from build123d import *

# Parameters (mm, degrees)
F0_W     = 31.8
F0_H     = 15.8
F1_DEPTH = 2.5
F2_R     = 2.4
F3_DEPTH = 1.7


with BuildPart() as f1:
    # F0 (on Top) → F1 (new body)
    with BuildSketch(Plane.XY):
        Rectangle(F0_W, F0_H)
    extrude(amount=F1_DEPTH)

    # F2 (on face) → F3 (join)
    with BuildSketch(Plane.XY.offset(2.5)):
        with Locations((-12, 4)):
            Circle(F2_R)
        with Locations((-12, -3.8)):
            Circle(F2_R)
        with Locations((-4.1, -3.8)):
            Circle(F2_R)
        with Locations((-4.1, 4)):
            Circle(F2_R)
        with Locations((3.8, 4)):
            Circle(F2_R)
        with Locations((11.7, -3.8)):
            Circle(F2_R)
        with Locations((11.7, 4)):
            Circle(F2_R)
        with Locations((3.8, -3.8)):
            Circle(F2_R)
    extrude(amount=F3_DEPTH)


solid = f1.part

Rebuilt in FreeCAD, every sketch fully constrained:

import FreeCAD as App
import Part
import Sketcher
from FreeCAD import Vector


def add_polygon(sketch, points):
    """Adds a closed chain of lines whose ends are joined by coincident constraints."""
    first, n = sketch.GeometryCount, len(points)
    for a, b in zip(points, points[1:] + points[:1]):
        sketch.addGeometry(Part.LineSegment(App.Vector(*a, 0), App.Vector(*b, 0)), False)
    for i in range(n):
        sketch.addConstraint(Sketcher.Constraint("Coincident", first + i, 2, first + (i + 1) % n, 1))

doc = App.newDocument("Part")
body = doc.addObject("PartDesign::Body", "Body")

sketch1 = body.newObject("Sketcher::SketchObject", "Sketch")
sketch1.AttachmentSupport = (doc.getObject("XY_Plane"), [""])
sketch1.MapMode = "FlatFace"
add_polygon(sketch1, [(-16, 8), (-16, -8), (16, -8), (16, 8)])
sketch1.addConstraint([
    Sketcher.Constraint("Vertical", 0),
    Sketcher.Constraint("Horizontal", 1),
    Sketcher.Constraint("Vertical", 2),
    Sketcher.Constraint("Horizontal", 3),
    Sketcher.Constraint("Symmetric", 0, 2, 2, 2, -1, 1),
    Sketcher.Constraint("DistanceX", 1, 1, 1, 2, 31.8),
    Sketcher.Constraint("DistanceY", 0, 2, 0, 1, 15.8),
])
pad1 = body.newObject("PartDesign::Pad", "Pad")
pad1.Profile = sketch1
pad1.Length = 2.5

sketch2 = body.newObject("Sketcher::SketchObject", "Sketch001")
sketch2.AttachmentSupport = (doc.getObject("XY_Plane"), [""])
sketch2.MapMode = "FlatFace"
sketch2.AttachmentOffset = App.Placement(Vector(0, 0, 2.5), App.Rotation())
sketch2.addGeometry([
    Part.Circle(Vector(-12, 4, 0), Vector(0, 0, 1), 2.4),
    Part.Circle(Vector(-12, -3.8, 0), Vector(0, 0, 1), 2.4),
    Part.Circle(Vector(-4.1, -3.8, 0), Vector(0, 0, 1), 2.4),
    Part.Circle(Vector(-4.1, 4, 0), Vector(0, 0, 1), 2.4),
    Part.Circle(Vector(3.8, 4, 0), Vector(0, 0, 1), 2.4),
    Part.Circle(Vector(11.7, -3.8, 0), Vector(0, 0, 1), 2.4),
    Part.Circle(Vector(11.7, 4, 0), Vector(0, 0, 1), 2.4),
    Part.Circle(Vector(3.8, -3.8, 0), Vector(0, 0, 1), 2.4),
], False)
sketch2.addConstraint([
    Sketcher.Constraint("Equal", 0, 1),
    Sketcher.Constraint("Equal", 1, 2),
    Sketcher.Constraint("Equal", 2, 3),
    Sketcher.Constraint("Equal", 3, 4),
    Sketcher.Constraint("Equal", 4, 5),
    Sketcher.Constraint("Equal", 5, 6),
    Sketcher.Constraint("Equal", 6, 7),
    Sketcher.Constraint("Horizontal", 1, 3, 2, 3),
    Sketcher.Constraint("Horizontal", 0, 3, 3, 3),
    Sketcher.Constraint("Horizontal", 3, 3, 4, 3),
    Sketcher.Constraint("Horizontal", 2, 3, 5, 3),
    Sketcher.Constraint("Horizontal", 4, 3, 6, 3),
    Sketcher.Constraint("Horizontal", 5, 3, 7, 3),
    Sketcher.Constraint("Vertical", 0, 3, 1, 3),
    Sketcher.Constraint("Vertical", 2, 3, 3, 3),
    Sketcher.Constraint("Vertical", 5, 3, 6, 3),
    Sketcher.Constraint("Vertical", 4, 3, 7, 3),
    Sketcher.Constraint("Diameter", 0, 4.8),
    Sketcher.Constraint("DistanceX", 0, 3, -1, 1, 12.0),
    Sketcher.Constraint("DistanceY", -1, 1, 0, 3, 4.0),
    Sketcher.Constraint("DistanceY", 1, 3, -1, 1, 3.8),
    Sketcher.Constraint("DistanceX", 2, 3, -1, 1, 4.1),
    Sketcher.Constraint("DistanceX", -1, 1, 4, 3, 3.8),
    Sketcher.Constraint("DistanceX", -1, 1, 5, 3, 11.7),
])
pad2 = body.newObject("PartDesign::Pad", "Pad001")
pad2.Profile = sketch2
pad2.Length = 1.7

doc.recompute()
